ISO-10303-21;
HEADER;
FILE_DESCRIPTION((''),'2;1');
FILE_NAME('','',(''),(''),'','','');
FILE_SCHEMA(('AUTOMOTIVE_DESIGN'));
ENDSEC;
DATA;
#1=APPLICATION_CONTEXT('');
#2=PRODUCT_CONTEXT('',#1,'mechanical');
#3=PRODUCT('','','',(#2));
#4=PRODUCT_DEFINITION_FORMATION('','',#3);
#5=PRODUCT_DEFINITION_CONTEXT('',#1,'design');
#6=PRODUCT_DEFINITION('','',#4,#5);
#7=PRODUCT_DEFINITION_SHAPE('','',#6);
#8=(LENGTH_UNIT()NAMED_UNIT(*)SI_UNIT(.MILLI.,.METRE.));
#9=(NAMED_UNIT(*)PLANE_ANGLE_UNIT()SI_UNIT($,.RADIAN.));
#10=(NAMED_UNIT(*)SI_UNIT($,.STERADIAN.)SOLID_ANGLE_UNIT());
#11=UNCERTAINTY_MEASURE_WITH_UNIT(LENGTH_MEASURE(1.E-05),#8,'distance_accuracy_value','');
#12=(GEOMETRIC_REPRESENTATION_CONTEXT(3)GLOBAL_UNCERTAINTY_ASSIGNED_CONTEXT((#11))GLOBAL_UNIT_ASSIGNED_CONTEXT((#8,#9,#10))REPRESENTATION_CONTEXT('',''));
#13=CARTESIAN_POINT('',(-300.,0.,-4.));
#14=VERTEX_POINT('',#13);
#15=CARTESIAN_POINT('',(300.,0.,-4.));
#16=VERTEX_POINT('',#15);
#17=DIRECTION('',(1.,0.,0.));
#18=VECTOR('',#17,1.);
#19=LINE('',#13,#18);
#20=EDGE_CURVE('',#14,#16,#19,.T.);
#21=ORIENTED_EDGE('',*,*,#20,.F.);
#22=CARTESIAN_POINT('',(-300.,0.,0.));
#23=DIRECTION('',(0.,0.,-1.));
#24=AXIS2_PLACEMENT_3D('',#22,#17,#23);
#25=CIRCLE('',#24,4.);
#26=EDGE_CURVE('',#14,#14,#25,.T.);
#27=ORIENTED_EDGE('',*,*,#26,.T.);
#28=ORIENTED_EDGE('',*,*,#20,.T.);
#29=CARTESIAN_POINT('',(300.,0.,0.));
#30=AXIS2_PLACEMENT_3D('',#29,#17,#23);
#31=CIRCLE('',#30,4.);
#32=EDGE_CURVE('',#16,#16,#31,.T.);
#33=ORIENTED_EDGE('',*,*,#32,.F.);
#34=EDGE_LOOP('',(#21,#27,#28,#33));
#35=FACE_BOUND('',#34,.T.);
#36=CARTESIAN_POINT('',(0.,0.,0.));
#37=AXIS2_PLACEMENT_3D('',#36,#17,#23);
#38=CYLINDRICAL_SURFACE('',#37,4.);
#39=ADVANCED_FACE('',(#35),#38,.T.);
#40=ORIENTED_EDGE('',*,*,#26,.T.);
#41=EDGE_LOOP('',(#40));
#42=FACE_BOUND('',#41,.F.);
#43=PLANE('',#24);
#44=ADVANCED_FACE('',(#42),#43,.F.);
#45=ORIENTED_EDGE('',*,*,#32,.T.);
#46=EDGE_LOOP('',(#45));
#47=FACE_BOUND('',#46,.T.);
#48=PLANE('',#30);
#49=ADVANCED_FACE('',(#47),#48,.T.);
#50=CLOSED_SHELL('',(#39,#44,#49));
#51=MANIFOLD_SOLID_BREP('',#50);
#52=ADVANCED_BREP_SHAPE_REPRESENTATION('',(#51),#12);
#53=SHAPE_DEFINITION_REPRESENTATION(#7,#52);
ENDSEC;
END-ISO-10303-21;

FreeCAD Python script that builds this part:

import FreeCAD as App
import Part
import Sketcher
from FreeCAD import Vector
Q = App.Units.Quantity

doc = App.newDocument("Part")
body = doc.addObject("PartDesign::Body", "Body")

sketch1 = body.newObject("Sketcher::SketchObject", "Sketch")
sketch1.AttachmentSupport = (doc.getObject("YZ_Plane"), [""])
sketch1.MapMode = "FlatFace"
sketch1.addGeometry(Part.Circle(Vector(0, 0, 0), Vector(0, 0, 1), 4), False)
sketch1.addConstraint([
    Sketcher.Constraint("Coincident", 0, 3, -1, 1),
    Sketcher.Constraint("Diameter", 0, Q("8 mm")),
])
pad1 = body.newObject("PartDesign::Pad", "Pad")
pad1.Profile = sketch1
pad1.Type = "TwoLengths"
pad1.Length = 300
pad1.Length2 = 300

doc.recompute()
